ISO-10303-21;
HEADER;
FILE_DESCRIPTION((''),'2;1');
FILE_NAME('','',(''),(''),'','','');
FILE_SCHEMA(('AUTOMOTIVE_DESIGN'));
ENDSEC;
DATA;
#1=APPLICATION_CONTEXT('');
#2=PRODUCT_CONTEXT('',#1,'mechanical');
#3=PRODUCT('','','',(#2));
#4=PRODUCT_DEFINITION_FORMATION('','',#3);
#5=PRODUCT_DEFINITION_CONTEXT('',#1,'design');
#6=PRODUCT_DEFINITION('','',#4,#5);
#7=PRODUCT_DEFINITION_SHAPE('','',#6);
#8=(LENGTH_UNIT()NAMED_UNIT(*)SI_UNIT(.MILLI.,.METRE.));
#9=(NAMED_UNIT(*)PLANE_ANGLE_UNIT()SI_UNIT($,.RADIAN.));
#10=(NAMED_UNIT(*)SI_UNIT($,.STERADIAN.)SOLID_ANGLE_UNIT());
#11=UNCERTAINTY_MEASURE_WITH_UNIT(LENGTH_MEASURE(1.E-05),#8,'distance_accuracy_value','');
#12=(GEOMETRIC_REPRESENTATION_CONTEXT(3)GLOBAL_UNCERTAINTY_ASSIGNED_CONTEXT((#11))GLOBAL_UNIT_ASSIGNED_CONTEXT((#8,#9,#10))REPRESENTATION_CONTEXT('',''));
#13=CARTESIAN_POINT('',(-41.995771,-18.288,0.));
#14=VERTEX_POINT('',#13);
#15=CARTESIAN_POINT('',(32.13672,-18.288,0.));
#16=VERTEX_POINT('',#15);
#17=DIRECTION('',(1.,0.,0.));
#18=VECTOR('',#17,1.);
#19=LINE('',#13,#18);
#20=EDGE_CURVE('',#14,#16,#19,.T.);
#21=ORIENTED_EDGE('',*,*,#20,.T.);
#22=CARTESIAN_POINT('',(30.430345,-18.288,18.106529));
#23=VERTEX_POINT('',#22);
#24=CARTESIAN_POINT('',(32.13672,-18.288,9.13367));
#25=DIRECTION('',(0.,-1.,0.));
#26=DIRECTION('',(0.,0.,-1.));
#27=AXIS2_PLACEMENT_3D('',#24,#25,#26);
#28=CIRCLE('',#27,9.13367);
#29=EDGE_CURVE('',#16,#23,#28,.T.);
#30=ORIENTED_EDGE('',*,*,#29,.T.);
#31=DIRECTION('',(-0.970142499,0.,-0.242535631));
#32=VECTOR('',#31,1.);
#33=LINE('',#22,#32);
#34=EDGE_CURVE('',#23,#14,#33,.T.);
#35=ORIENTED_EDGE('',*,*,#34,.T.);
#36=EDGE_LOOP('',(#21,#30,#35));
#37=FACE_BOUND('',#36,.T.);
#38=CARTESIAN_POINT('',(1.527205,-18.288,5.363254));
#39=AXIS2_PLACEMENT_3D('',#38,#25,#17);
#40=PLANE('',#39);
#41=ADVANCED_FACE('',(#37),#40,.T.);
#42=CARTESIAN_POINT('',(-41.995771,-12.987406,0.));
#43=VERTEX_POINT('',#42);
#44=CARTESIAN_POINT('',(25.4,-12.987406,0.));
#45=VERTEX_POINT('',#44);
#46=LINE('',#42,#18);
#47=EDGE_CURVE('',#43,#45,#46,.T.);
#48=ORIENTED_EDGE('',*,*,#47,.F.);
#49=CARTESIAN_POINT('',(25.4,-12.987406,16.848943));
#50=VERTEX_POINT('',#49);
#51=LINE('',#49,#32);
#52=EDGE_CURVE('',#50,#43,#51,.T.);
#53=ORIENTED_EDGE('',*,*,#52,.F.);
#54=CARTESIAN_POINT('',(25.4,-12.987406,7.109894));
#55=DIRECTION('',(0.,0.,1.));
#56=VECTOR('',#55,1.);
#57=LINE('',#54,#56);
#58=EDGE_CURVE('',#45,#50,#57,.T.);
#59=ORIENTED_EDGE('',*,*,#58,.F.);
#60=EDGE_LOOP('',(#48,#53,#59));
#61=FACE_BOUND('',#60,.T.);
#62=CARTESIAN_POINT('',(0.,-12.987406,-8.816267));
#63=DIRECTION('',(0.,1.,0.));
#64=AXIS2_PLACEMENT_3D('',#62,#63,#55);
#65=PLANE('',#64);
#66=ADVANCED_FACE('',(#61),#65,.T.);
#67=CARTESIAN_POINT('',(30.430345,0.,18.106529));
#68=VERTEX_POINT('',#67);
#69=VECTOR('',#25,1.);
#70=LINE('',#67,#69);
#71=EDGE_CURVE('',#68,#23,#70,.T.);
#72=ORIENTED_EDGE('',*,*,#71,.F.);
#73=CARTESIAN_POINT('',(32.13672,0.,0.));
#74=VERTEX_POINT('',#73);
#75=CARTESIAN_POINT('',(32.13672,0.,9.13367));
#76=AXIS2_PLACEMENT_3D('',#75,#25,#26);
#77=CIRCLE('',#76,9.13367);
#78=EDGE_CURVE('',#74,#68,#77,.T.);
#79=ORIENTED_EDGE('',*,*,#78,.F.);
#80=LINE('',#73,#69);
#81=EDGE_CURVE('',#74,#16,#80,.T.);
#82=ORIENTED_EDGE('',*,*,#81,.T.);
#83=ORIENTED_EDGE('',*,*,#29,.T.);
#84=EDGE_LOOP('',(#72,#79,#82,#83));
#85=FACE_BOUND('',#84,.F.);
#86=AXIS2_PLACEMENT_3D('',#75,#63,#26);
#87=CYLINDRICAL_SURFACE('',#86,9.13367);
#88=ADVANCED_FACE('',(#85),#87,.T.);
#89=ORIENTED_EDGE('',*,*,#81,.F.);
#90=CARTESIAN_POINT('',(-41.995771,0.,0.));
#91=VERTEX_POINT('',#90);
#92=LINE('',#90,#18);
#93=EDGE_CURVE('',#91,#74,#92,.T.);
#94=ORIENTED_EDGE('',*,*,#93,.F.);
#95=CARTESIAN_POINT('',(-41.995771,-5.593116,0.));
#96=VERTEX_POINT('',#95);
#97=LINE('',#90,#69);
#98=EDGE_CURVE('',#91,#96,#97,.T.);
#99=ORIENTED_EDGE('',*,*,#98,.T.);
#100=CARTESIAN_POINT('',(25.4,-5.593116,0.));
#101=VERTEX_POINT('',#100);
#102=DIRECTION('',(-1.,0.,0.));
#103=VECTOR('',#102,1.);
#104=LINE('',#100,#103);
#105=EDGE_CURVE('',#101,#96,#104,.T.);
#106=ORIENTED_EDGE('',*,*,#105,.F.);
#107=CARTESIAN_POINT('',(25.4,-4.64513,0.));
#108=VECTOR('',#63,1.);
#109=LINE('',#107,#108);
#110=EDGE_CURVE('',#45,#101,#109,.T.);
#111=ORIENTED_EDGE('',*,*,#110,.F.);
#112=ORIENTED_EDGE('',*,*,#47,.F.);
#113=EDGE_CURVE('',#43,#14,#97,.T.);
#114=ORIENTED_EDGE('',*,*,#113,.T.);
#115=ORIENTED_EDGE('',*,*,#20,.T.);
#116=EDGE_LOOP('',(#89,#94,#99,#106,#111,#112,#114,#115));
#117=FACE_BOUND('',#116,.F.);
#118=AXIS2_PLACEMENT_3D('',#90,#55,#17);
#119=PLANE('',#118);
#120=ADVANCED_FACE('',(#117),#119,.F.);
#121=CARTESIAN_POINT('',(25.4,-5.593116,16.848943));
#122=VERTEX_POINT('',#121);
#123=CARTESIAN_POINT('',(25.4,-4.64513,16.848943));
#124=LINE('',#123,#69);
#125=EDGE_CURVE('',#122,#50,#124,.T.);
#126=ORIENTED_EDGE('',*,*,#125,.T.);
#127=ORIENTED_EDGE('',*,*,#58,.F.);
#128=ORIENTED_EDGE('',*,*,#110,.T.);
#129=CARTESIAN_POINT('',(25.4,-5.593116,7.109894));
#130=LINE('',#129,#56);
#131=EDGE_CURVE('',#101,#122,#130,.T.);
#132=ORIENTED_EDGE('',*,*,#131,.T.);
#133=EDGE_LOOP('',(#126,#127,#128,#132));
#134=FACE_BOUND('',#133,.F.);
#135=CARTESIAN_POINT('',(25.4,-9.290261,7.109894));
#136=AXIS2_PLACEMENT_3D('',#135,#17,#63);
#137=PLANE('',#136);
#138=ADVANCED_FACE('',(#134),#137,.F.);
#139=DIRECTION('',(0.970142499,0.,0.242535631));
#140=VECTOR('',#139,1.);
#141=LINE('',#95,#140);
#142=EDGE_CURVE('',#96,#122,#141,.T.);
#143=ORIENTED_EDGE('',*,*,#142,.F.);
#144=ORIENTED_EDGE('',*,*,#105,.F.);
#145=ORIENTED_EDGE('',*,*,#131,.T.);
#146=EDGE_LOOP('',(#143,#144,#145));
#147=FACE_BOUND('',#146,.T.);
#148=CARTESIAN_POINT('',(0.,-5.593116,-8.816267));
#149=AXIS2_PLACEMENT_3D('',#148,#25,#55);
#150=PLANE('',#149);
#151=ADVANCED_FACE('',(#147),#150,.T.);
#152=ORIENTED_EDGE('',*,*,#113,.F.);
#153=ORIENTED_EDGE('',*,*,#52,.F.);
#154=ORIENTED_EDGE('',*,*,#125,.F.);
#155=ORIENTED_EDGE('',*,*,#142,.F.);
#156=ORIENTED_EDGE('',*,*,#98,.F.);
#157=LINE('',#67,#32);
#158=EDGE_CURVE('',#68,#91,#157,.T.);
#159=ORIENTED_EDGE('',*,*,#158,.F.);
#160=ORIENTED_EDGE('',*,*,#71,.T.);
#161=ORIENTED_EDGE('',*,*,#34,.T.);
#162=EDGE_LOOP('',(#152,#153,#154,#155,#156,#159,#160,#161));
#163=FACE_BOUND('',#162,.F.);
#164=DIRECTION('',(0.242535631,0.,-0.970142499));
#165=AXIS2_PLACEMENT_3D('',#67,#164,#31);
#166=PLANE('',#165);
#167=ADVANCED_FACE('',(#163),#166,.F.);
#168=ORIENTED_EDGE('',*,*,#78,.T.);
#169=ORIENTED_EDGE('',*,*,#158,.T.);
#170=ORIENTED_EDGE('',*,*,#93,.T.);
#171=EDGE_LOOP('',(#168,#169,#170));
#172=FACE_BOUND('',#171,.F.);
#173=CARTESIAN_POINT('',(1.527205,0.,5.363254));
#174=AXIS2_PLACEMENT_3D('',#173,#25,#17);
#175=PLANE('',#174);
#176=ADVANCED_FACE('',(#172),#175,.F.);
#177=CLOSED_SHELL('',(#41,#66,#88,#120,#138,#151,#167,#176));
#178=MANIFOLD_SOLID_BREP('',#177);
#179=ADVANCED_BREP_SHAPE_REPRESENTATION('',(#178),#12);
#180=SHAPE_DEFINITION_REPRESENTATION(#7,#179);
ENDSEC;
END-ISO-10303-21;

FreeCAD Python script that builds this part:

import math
import FreeCAD as App
import Part
import Sketcher

V = App.Vector
Q = App.Units.Quantity


def add_polygon(sketch, points):
    """Adds a closed chain of lines whose ends are joined by coincident constraints."""
    first, n = sketch.GeometryCount, len(points)
    for a, b in zip(points, points[1:] + points[:1]):
        sketch.addGeometry(Part.LineSegment(App.Vector(*a, 0), App.Vector(*b, 0)), False)
    for i in range(n):
        sketch.addConstraint(Sketcher.Constraint("Coincident", first + i, 2, first + (i + 1) % n, 1))

doc = App.newDocument("Part")
body = doc.addObject("PartDesign::Body", "Body")

sketch1 = doc.addObject("Sketcher::SketchObject", "Sketch")
body.addObject(sketch1)
sketch1.AttachmentSupport = (doc.XZ_Plane, [""])
sketch1.MapMode = "FlatFace"
sketch1.addGeometry([
    Part.ArcOfCircle(Part.Circle(V(32.13672, 9.13367, 0), V(0, 0, 1), 9.13367), math.radians(-90), math.radians(100.767405)),
    Part.LineSegment(V(30.430345, 18.106529, 0), V(-41.995771, 0, 0)),
    Part.LineSegment(V(-41.995771, 0, 0), V(32.13672, 0, 0)),
], False)
sketch1.addConstraint([
    Sketcher.Constraint("Coincident", 0, 2, 1, 1),
    Sketcher.Constraint("Coincident", 1, 2, 2, 1),
    Sketcher.Constraint("Tangent", 2, 2, 0, 1),
    Sketcher.Constraint("Horizontal", 2),
    Sketcher.Constraint("PointOnObject", 1, 2, -1),
    Sketcher.Constraint("Radius", 0, Q("9.13367 mm")),
    Sketcher.Constraint("DistanceX", 2, 1, 2, 2, Q("74.132491 mm")),
    Sketcher.Constraint("Distance", 1, Q("74.655132 mm")),
    Sketcher.Constraint("DistanceX", -1, 1, 0, 3, Q("32.13672 mm")),
])
pad1 = doc.addObject("PartDesign::Pad", "Pad")
body.addObject(pad1)
pad1.Profile = sketch1
pad1.Length = Q("0.72 in")

sketch2 = doc.addObject("Sketcher::SketchObject", "Sketch001")
body.addObject(sketch2)
sketch2.AttachmentSupport = (doc.YZ_Plane, [""])
sketch2.MapMode = "FlatFace"
add_polygon(sketch2, [(-12.987406, 23.036055), (-12.987406, -8.816267), (-5.593116, -8.816267), (-5.593116, 23.036055)])
sketch2.addConstraint([
    Sketcher.Constraint("Vertical", 0),
    Sketcher.Constraint("Horizontal", 1),
    Sketcher.Constraint("Vertical", 2),
    Sketcher.Constraint("Horizontal", 3),
    Sketcher.Constraint("DistanceX", 1, 1, 1, 2, Q("7.39429 mm")),
    Sketcher.Constraint("DistanceY", 0, 2, 0, 1, Q("31.852323 mm")),
    Sketcher.Constraint("DistanceX", 0, 2, -1, 1, Q("12.987406 mm")),
    Sketcher.Constraint("DistanceY", 0, 2, -1, 1, Q("8.816267 mm")),
])
pocket1 = doc.addObject("PartDesign::Pocket", "Pocket")
body.addObject(pocket1)
pocket1.Profile = sketch2
pocket1.Type = "TwoLengths"
pocket1.Length = Q("2.16 in")
pocket1.Length2 = Q("1 in")

doc.recompute()
